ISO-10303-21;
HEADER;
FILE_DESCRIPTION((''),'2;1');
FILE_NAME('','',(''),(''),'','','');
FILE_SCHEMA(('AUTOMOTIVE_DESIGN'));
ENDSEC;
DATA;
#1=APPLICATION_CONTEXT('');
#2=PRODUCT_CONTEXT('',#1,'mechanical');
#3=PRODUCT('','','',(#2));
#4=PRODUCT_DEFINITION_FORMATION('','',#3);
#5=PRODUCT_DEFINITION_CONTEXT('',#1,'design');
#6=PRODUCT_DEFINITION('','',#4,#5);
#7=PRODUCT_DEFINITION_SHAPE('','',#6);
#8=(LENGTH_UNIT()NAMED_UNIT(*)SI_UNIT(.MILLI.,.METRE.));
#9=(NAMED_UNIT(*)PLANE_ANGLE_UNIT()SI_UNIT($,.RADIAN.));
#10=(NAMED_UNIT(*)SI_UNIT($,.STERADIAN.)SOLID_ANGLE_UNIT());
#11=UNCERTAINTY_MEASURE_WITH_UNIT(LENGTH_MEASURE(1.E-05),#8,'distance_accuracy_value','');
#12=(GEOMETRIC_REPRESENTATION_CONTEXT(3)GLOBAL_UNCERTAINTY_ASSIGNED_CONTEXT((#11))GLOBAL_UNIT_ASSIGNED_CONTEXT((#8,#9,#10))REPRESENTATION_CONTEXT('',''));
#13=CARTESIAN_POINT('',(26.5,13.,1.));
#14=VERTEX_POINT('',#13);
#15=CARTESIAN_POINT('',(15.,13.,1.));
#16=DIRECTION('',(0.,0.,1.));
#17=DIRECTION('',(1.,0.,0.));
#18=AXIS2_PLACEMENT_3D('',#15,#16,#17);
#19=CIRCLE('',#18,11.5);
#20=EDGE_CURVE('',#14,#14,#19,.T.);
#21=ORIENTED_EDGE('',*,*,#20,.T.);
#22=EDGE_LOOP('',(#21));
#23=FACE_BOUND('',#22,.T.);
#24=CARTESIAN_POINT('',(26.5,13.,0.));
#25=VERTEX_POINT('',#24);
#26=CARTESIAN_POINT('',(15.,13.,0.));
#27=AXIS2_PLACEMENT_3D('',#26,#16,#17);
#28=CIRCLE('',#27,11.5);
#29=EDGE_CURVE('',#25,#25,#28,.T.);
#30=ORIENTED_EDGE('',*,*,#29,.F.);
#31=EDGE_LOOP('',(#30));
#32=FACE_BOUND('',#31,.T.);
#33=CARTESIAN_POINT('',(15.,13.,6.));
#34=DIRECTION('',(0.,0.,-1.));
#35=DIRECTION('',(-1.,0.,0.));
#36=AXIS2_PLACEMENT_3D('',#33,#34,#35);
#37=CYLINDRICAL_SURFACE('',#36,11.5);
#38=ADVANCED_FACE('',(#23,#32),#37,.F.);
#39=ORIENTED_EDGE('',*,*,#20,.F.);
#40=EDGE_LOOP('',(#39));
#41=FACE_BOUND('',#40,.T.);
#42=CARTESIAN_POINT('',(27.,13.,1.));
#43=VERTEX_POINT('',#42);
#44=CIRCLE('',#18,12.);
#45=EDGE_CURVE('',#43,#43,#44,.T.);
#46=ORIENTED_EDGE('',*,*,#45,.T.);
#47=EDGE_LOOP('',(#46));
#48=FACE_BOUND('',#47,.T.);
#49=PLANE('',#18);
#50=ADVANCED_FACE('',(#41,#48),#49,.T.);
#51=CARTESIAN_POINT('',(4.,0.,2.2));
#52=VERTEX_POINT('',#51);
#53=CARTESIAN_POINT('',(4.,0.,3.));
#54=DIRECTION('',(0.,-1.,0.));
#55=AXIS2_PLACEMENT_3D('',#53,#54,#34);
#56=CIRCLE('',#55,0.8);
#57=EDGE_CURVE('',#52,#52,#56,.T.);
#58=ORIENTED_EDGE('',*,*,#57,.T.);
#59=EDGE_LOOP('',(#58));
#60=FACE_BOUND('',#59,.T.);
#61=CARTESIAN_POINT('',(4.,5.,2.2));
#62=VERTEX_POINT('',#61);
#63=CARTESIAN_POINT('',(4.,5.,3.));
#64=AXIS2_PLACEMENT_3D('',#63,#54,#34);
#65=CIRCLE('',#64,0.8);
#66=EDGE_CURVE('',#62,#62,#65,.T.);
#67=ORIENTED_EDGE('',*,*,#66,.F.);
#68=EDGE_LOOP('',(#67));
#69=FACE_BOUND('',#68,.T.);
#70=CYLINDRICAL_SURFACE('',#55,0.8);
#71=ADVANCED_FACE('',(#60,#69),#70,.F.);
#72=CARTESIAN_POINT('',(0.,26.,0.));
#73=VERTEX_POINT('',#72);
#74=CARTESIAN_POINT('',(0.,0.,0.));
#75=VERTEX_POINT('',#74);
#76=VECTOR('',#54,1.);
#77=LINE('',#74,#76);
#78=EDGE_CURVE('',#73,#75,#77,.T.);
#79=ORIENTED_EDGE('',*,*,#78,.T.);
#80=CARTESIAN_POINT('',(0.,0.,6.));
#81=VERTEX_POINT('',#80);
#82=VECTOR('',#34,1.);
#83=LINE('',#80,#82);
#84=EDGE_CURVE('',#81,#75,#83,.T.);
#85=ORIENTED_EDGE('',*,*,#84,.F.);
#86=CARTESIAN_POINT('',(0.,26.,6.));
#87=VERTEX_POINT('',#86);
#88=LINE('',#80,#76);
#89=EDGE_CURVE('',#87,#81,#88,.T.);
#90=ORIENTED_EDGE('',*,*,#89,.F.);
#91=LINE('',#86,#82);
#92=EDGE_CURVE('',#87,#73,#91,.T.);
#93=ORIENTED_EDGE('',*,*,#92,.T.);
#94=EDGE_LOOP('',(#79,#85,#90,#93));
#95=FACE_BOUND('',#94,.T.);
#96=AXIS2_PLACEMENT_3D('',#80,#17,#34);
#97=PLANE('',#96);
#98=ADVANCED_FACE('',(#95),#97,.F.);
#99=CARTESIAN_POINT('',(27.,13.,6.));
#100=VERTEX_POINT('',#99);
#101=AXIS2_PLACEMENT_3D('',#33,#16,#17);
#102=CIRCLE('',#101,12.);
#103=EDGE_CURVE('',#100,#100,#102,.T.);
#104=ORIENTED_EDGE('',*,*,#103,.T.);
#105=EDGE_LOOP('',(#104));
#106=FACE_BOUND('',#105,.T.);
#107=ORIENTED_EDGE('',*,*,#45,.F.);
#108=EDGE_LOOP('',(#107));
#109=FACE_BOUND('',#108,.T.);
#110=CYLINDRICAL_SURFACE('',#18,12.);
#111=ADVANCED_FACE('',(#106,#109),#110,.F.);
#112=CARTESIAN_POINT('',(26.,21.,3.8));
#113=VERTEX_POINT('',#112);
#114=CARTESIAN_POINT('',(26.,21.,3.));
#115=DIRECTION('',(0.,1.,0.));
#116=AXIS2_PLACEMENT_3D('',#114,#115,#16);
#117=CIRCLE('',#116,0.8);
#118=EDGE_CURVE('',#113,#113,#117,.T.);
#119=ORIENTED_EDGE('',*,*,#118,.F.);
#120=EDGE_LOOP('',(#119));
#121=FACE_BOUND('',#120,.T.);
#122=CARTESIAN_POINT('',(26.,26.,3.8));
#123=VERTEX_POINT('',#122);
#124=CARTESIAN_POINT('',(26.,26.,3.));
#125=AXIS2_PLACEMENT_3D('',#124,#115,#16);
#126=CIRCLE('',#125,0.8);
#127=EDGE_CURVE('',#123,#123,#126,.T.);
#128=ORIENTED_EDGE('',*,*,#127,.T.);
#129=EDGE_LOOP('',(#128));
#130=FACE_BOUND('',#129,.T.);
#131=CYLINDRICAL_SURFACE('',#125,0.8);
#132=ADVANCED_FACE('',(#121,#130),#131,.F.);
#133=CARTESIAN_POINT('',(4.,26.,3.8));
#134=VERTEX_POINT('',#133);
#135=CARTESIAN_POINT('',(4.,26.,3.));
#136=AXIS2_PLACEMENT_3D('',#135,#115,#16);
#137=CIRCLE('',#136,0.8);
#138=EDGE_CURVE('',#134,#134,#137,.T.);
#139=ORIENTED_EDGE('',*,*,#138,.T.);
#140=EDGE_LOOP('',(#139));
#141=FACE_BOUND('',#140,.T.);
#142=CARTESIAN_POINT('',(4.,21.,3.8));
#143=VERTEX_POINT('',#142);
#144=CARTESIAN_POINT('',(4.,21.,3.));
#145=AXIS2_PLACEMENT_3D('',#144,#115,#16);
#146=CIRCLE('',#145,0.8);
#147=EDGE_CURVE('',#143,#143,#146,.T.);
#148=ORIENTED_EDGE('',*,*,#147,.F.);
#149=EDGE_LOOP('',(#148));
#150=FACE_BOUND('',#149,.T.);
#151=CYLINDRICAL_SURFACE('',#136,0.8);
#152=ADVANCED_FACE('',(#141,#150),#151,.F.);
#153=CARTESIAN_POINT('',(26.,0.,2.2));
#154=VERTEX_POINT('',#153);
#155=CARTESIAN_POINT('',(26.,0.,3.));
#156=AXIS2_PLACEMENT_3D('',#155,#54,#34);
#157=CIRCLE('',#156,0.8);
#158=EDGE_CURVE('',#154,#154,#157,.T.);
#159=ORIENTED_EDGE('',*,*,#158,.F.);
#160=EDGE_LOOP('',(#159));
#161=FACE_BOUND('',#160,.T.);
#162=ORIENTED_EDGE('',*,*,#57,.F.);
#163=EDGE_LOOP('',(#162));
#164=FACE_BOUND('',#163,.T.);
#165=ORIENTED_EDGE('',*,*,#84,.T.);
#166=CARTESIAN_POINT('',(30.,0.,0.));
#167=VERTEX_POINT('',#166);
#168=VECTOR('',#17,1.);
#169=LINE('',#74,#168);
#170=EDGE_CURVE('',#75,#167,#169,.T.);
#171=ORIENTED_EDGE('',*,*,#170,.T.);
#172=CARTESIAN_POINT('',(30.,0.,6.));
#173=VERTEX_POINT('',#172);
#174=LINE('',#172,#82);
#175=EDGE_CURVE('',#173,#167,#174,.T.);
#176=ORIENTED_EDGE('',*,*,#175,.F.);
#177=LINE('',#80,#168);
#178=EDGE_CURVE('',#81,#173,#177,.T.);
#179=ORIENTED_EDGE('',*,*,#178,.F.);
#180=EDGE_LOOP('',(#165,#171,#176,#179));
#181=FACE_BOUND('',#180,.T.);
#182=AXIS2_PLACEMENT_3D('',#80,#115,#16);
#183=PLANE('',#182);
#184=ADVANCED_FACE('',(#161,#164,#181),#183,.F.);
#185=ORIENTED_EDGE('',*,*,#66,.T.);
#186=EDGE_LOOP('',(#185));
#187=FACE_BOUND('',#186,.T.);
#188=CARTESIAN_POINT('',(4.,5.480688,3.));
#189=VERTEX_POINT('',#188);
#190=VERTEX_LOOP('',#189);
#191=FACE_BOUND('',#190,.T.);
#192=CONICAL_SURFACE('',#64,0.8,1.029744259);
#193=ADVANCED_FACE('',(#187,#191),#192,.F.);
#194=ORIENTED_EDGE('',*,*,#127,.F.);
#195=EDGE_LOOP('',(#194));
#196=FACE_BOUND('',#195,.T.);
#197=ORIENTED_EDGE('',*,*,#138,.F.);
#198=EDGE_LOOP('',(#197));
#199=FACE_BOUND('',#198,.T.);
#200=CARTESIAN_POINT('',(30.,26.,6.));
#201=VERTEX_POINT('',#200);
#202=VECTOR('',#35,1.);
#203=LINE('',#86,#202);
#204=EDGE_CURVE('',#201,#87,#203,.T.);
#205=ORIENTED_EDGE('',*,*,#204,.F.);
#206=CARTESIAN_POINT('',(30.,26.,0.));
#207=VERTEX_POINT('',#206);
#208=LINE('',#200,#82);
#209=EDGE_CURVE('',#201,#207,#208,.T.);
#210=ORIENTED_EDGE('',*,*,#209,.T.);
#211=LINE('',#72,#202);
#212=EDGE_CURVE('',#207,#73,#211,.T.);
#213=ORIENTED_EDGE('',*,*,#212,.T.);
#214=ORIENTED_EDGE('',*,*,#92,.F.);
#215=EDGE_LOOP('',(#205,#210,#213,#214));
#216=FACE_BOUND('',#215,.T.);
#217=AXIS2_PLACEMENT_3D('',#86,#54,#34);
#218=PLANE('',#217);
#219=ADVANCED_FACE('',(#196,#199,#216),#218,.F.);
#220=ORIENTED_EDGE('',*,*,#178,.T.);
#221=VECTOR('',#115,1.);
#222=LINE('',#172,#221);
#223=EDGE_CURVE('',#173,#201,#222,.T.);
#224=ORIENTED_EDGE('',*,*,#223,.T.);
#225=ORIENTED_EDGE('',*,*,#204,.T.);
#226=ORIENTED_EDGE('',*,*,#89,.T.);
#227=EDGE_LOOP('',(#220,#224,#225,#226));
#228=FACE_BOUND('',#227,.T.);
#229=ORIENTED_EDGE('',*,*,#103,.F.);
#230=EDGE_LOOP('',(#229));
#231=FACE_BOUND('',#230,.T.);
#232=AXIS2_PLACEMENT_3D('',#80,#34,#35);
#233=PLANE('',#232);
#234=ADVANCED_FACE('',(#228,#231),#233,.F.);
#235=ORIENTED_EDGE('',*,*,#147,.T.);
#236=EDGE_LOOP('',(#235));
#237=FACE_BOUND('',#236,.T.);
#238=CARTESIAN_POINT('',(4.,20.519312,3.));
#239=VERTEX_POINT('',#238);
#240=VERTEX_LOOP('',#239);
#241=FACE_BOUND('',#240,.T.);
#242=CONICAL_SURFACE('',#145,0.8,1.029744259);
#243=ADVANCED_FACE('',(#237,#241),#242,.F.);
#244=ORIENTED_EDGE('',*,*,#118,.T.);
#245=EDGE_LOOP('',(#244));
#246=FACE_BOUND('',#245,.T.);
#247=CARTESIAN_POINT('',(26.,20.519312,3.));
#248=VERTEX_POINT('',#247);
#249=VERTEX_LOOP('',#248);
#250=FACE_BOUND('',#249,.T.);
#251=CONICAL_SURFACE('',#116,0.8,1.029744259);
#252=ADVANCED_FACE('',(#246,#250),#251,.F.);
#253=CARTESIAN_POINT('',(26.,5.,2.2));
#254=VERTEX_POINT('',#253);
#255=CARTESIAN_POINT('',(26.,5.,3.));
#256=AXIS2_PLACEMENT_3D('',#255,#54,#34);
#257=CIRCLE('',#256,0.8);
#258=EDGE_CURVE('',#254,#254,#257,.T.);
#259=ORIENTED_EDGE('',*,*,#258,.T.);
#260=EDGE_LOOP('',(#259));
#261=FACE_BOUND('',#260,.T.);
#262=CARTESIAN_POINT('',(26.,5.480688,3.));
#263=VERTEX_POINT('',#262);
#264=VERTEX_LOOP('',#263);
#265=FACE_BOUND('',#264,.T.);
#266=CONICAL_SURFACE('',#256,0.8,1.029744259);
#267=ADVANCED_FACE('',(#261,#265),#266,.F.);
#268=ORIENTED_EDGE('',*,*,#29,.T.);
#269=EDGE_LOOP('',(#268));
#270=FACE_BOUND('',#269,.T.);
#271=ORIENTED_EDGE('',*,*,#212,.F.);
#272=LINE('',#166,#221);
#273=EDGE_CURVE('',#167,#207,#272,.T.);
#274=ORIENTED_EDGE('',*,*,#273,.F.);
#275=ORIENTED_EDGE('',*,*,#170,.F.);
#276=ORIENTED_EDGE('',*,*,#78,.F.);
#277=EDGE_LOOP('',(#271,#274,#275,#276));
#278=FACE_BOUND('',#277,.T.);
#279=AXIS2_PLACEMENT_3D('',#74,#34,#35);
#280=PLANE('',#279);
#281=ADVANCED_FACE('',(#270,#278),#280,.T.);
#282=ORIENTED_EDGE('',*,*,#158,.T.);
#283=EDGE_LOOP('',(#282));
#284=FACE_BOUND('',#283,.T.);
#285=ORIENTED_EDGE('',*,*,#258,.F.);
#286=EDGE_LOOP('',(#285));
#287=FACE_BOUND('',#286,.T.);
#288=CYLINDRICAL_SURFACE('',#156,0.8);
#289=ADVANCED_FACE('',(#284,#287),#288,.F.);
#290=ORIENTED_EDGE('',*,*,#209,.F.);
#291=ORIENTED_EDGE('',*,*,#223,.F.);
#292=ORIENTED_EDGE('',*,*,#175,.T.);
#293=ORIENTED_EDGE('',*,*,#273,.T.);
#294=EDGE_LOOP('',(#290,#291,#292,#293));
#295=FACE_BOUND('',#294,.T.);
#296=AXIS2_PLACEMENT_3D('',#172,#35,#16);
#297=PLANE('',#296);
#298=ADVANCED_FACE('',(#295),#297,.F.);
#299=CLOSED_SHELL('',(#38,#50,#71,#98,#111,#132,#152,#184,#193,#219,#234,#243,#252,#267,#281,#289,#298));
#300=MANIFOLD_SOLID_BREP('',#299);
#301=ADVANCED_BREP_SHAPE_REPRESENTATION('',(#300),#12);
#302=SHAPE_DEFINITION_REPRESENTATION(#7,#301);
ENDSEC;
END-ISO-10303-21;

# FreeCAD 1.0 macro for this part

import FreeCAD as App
import Part
import Sketcher
from FreeCAD import Vector

doc = App.newDocument("Part")
body = doc.addObject("PartDesign::Body", "Body")

# Sketch on XY plane
sketch1 = body.newObject("Sketcher::SketchObject", "Sketch")
sketch1.AttachmentSupport = (doc.getObject("XY_Plane"), [""])
sketch1.MapMode = "FlatFace"
sketch1.addGeometry(Part.LineSegment(Vector(0, 26, 0), Vector(0, 0, 0)), False)
sketch1.addGeometry(Part.LineSegment(Vector(0, 0, 0), Vector(30, 0, 0)), False)
sketch1.addGeometry(Part.LineSegment(Vector(30, 0, 0), Vector(30, 26, 0)), False)
sketch1.addGeometry(Part.LineSegment(Vector(30, 26, 0), Vector(0, 26, 0)), False)
sketch1.addGeometry(Part.Circle(Vector(15, 13, 0), Vector(0, 0, 1), 11.5), False)
sketch1.addConstraint(Sketcher.Constraint("Coincident", 0, 2, 1, 1))
sketch1.addConstraint(Sketcher.Constraint("Coincident", 1, 2, 2, 1))
sketch1.addConstraint(Sketcher.Constraint("Coincident", 2, 2, 3, 1))
sketch1.addConstraint(Sketcher.Constraint("Coincident", 3, 2, 0, 1))
sketch1.addConstraint(Sketcher.Constraint("Vertical", 0))
sketch1.addConstraint(Sketcher.Constraint("Horizontal", 1))
sketch1.addConstraint(Sketcher.Constraint("Vertical", 2))
sketch1.addConstraint(Sketcher.Constraint("Horizontal", 3))
sketch1.addConstraint(Sketcher.Constraint("Coincident", 0, 2, -1, 1))
sketch1.addConstraint(Sketcher.Constraint("Diameter", 4, 23.0))
sketch1.addConstraint(Sketcher.Constraint("DistanceX", 1, 1, 1, 2, 30.0))
sketch1.addConstraint(Sketcher.Constraint("DistanceY", 0, 2, 0, 1, 26.0))
sketch1.addConstraint(Sketcher.Constraint("DistanceX", -1, 1, 4, 3, 15.0))
sketch1.addConstraint(Sketcher.Constraint("DistanceY", -1, 1, 4, 3, 13.0))
pad1 = body.newObject("PartDesign::Pad", "Pad")
pad1.Profile = sketch1
pad1.Length = 6

# Sketch on XY plane
sketch2 = body.newObject("Sketcher::SketchObject", "Sketch001")
sketch2.AttachmentSupport = (doc.getObject("XY_Plane"), [""])
sketch2.MapMode = "FlatFace"
sketch2.AttachmentOffset = App.Placement(Vector(0, 0, 6), App.Rotation())
sketch2.addGeometry(Part.Circle(Vector(15, 13, 0), Vector(0, 0, 1), 12), False)
sketch2.addConstraint(Sketcher.Constraint("Diameter", 0, 24.0))
sketch2.addConstraint(Sketcher.Constraint("DistanceX", -1, 1, 0, 3, 15.0))
sketch2.addConstraint(Sketcher.Constraint("DistanceY", -1, 1, 0, 3, 13.0))
pocket1 = body.newObject("PartDesign::Pocket", "Pocket")
pocket1.Profile = sketch2
pocket1.Length = 5

# Sketch on XZ plane
sketch3 = body.newObject("Sketcher::SketchObject", "Sketch002")
sketch3.AttachmentSupport = (doc.getObject("XZ_Plane"), [""])
sketch3.MapMode = "FlatFace"
sketch3.AttachmentOffset = App.Placement(Vector(0, 0, -26), App.Rotation())
sketch3.addGeometry(Part.Circle(Vector(4, 3, 0), Vector(0, 0, 1), 0.8), False)
sketch3.addGeometry(Part.Circle(Vector(26, 3, 0), Vector(0, 0, 1), 0.8), False)
sketch3.addConstraint(Sketcher.Constraint("Equal", 0, 1))
sketch3.addConstraint(Sketcher.Constraint("Horizontal", 0, 3, 1, 3))
sketch3.addConstraint(Sketcher.Constraint("Diameter", 0, 1.6))
sketch3.addConstraint(Sketcher.Constraint("DistanceX", -1, 1, 0, 3, 4.0))
sketch3.addConstraint(Sketcher.Constraint("DistanceY", -1, 1, 0, 3, 3.0))
sketch3.addConstraint(Sketcher.Constraint("DistanceX", -1, 1, 1, 3, 26.0))
doc.recompute()
hole = body.newObject("PartDesign::Hole", "Hole")
hole.Profile = sketch3
hole.ThreadType = "None"
hole.Diameter = 1.6
hole.DepthType = "Dimension"
hole.Depth = 5
hole.DrillPoint = "Angled"
hole.DrillPointAngle = 118
hole.Reversed = True

# Sketch on XZ plane
sketch4 = body.newObject("Sketcher::SketchObject", "Sketch003")
sketch4.AttachmentSupport = (doc.getObject("XZ_Plane"), [""])
sketch4.MapMode = "FlatFace"
sketch4.addGeometry(Part.Circle(Vector(4, 3, 0), Vector(0, 0, 1), 0.8), False)
sketch4.addGeometry(Part.Circle(Vector(26, 3, 0), Vector(0, 0, 1), 0.8), False)
sketch4.addConstraint(Sketcher.Constraint("Equal", 0, 1))
sketch4.addConstraint(Sketcher.Constraint("Horizontal", 0, 3, 1, 3))
sketch4.addConstraint(Sketcher.Constraint("Diameter", 0, 1.6))
sketch4.addConstraint(Sketcher.Constraint("DistanceX", -1, 1, 0, 3, 4.0))
sketch4.addConstraint(Sketcher.Constraint("DistanceY", -1, 1, 0, 3, 3.0))
sketch4.addConstraint(Sketcher.Constraint("DistanceX", -1, 1, 1, 3, 26.0))
doc.recompute()
hole2 = body.newObject("PartDesign::Hole", "Hole001")
hole2.Profile = sketch4
hole2.ThreadType = "None"
hole2.Diameter = 1.6
hole2.DepthType = "Dimension"
hole2.Depth = 5
hole2.DrillPoint = "Angled"
hole2.DrillPointAngle = 118

doc.recompute()
